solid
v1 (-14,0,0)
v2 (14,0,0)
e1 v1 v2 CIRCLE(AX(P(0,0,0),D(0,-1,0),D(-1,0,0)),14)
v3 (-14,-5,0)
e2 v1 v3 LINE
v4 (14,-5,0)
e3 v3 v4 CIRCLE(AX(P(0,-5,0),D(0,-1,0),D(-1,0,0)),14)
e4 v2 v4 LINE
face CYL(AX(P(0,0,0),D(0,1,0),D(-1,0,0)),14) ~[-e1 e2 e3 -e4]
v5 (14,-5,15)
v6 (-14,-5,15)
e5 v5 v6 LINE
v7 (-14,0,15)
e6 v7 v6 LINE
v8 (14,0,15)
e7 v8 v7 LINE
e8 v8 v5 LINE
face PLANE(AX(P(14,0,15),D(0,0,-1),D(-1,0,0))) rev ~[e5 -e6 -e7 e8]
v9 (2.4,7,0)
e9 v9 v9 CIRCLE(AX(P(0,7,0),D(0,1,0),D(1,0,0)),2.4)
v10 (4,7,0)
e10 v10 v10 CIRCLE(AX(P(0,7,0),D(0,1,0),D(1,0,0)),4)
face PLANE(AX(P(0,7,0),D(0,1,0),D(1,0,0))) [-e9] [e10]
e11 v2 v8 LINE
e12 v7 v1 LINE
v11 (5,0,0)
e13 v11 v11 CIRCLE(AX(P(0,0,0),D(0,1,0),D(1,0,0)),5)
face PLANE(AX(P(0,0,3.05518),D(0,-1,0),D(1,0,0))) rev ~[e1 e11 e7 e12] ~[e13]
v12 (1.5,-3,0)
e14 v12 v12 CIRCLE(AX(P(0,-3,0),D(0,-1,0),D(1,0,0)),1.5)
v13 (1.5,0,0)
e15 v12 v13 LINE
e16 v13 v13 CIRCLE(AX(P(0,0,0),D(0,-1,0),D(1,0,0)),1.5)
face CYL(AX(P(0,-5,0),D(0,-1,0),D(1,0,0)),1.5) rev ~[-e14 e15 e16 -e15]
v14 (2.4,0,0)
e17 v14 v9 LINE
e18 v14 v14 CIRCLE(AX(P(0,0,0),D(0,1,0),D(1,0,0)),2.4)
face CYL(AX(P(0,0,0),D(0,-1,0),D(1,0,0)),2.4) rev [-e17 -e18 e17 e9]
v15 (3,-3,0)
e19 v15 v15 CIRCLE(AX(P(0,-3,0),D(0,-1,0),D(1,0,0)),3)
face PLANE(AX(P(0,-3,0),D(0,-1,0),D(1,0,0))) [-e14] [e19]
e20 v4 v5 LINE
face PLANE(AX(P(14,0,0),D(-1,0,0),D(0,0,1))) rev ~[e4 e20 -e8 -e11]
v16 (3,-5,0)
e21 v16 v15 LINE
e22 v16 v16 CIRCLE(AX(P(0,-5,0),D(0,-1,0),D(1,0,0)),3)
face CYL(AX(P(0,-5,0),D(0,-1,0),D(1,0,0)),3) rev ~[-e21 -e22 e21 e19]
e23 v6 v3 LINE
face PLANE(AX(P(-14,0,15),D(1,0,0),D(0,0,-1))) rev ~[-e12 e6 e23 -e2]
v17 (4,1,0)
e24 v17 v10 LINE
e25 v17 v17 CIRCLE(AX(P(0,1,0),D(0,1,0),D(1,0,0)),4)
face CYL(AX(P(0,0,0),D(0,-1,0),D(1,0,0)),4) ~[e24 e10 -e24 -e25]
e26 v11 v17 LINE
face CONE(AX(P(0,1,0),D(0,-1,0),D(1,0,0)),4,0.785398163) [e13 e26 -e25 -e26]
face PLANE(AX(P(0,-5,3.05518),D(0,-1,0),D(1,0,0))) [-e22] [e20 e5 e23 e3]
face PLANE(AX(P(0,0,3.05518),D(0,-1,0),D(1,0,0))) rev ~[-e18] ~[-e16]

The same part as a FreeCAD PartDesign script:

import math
import FreeCAD as App
import Part
import Sketcher
Q = App.Units.Quantity


def edges_at(feature, points):
    """Names of the edges that pass closest to the given points."""
    edges = feature.Shape.Edges
    near = lambda p: min(range(len(edges)), key=lambda i: edges[i].distToShape(Part.Vertex(*p))[0])
    return sorted({f"Edge{near(p) + 1}" for p in points})

doc = App.newDocument("Part")
params = doc.addObject("Spreadsheet::Sheet", "Params")
for row, (alias, value) in enumerate([
    ("sketch1_radius", "14 mm"),
    ("sketch1_height", "15 mm"),
    ("pad1_length", "5 mm"),
    ("sketch2_diameter", "8 mm"),
    ("sketch2_diameter2", "4.8 mm"),
    ("pad2_length", "7 mm"),
    ("sketch3_diameter", "3 mm"),
    ("sketch4_diameter", "6 mm"),
    ("pocket2_length", "2 mm"),
    ("chamfer_size", "1 mm"),
], start=1):
    params.set(f"A{row}", alias)
    params.set(f"B{row}", "=" + value)
    params.setAlias(f"B{row}", alias)

body = doc.addObject("PartDesign::Body", "Body")

# Sketch on XZ plane
sketch1 = body.newObject("Sketcher::SketchObject", "Sketch")
sketch1.AttachmentSupport = (doc.getObject("XZ_Plane"), [""])
sketch1.MapMode = "FlatFace"
sketch1.addGeometry([
    Part.LineSegment(App.Vector(-14, 15, 0), App.Vector(-14, 0, 0)),
    Part.ArcOfCircle(Part.Circle(App.Vector(0, 0, 0), App.Vector(0, 0, 1), 14), math.radians(180), math.radians(360)),
    Part.LineSegment(App.Vector(14, 0, 0), App.Vector(14, 15, 0)),
    Part.LineSegment(App.Vector(14, 15, 0), App.Vector(-14, 15, 0)),
], False)
sketch1.addConstraint([
    Sketcher.Constraint("Tangent", 0, 2, 1, 1),
    Sketcher.Constraint("Tangent", 1, 2, 2, 1),
    Sketcher.Constraint("Coincident", 2, 2, 3, 1),
    Sketcher.Constraint("Coincident", 3, 2, 0, 1),
    Sketcher.Constraint("Vertical", 0),
    Sketcher.Constraint("Vertical", 2),
    Sketcher.Constraint("Horizontal", 3),
    Sketcher.Constraint("Coincident", 1, 3, -1, 1),
    Sketcher.Constraint("Radius", 1, Q("14 mm")),
    Sketcher.Constraint("DistanceY", 0, 2, 0, 1, Q("15 mm")),
])
sketch1.setExpression("Constraints[8]", "Params.sketch1_radius")
sketch1.setExpression("Constraints[9]", "Params.sketch1_height")
pad1 = body.newObject("PartDesign::Pad", "Pad")
pad1.Profile = sketch1
pad1.setExpression("Length", "Params.pad1_length")

# Sketch on XZ plane
sketch2 = body.newObject("Sketcher::SketchObject", "Sketch001")
sketch2.AttachmentSupport = (doc.getObject("XZ_Plane"), [""])
sketch2.MapMode = "FlatFace"
sketch2.addGeometry([
    Part.Circle(App.Vector(0, 0, 0), App.Vector(0, 0, 1), 4),
    Part.Circle(App.Vector(0, 0, 0), App.Vector(0, 0, 1), 2.4),
], False)
sketch2.addConstraint([
    Sketcher.Constraint("Coincident", 0, 3, -1, 1),
    Sketcher.Constraint("Coincident", 1, 3, -1, 1),
    Sketcher.Constraint("Diameter", 0, Q("8 mm")),
    Sketcher.Constraint("Diameter", 1, Q("4.8 mm")),
])
sketch2.setExpression("Constraints[2]", "Params.sketch2_diameter")
sketch2.setExpression("Constraints[3]", "Params.sketch2_diameter2")
pad2 = body.newObject("PartDesign::Pad", "Pad001")
pad2.Profile = sketch2
pad2.setExpression("Length", "Params.pad2_length")
pad2.Reversed = True

# Sketch on XZ plane
sketch3 = body.newObject("Sketcher::SketchObject", "Sketch002")
sketch3.AttachmentSupport = (doc.getObject("XZ_Plane"), [""])
sketch3.MapMode = "FlatFace"
sketch3.AttachmentOffset = App.Placement(App.Vector(0, 0, 5), App.Rotation())
sketch3.addGeometry(Part.Circle(App.Vector(0, 0, 0), App.Vector(0, 0, 1), 1.5), False)
sketch3.addConstraint([
    Sketcher.Constraint("Coincident", 0, 3, -1, 1),
    Sketcher.Constraint("Diameter", 0, Q("3 mm")),
])
sketch3.setExpression("Constraints[1]", "Params.sketch3_diameter")
pocket1 = body.newObject("PartDesign::Pocket", "Pocket")
pocket1.Profile = sketch3
pocket1.Type = "ThroughAll"

# Sketch on XZ plane
sketch4 = body.newObject("Sketcher::SketchObject", "Sketch003")
sketch4.AttachmentSupport = (doc.getObject("XZ_Plane"), [""])
sketch4.MapMode = "FlatFace"
sketch4.AttachmentOffset = App.Placement(App.Vector(0, 0, 5), App.Rotation())
sketch4.addGeometry(Part.Circle(App.Vector(0, 0, 0), App.Vector(0, 0, 1), 3), False)
sketch4.addConstraint([
    Sketcher.Constraint("Coincident", 0, 3, -1, 1),
    Sketcher.Constraint("Diameter", 0, Q("6 mm")),
])
sketch4.setExpression("Constraints[1]", "Params.sketch4_diameter")
pocket2 = body.newObject("PartDesign::Pocket", "Pocket001")
pocket2.Profile = sketch4
pocket2.setExpression("Length", "Params.pocket2_length")
doc.recompute()

chamfer = body.newObject("PartDesign::Chamfer", "Chamfer")
chamfer.Base = (pocket2, edges_at(pocket2, [(-4, 0, 0)]))
chamfer.setExpression("Size", "Params.chamfer_size")

doc.recompute()
